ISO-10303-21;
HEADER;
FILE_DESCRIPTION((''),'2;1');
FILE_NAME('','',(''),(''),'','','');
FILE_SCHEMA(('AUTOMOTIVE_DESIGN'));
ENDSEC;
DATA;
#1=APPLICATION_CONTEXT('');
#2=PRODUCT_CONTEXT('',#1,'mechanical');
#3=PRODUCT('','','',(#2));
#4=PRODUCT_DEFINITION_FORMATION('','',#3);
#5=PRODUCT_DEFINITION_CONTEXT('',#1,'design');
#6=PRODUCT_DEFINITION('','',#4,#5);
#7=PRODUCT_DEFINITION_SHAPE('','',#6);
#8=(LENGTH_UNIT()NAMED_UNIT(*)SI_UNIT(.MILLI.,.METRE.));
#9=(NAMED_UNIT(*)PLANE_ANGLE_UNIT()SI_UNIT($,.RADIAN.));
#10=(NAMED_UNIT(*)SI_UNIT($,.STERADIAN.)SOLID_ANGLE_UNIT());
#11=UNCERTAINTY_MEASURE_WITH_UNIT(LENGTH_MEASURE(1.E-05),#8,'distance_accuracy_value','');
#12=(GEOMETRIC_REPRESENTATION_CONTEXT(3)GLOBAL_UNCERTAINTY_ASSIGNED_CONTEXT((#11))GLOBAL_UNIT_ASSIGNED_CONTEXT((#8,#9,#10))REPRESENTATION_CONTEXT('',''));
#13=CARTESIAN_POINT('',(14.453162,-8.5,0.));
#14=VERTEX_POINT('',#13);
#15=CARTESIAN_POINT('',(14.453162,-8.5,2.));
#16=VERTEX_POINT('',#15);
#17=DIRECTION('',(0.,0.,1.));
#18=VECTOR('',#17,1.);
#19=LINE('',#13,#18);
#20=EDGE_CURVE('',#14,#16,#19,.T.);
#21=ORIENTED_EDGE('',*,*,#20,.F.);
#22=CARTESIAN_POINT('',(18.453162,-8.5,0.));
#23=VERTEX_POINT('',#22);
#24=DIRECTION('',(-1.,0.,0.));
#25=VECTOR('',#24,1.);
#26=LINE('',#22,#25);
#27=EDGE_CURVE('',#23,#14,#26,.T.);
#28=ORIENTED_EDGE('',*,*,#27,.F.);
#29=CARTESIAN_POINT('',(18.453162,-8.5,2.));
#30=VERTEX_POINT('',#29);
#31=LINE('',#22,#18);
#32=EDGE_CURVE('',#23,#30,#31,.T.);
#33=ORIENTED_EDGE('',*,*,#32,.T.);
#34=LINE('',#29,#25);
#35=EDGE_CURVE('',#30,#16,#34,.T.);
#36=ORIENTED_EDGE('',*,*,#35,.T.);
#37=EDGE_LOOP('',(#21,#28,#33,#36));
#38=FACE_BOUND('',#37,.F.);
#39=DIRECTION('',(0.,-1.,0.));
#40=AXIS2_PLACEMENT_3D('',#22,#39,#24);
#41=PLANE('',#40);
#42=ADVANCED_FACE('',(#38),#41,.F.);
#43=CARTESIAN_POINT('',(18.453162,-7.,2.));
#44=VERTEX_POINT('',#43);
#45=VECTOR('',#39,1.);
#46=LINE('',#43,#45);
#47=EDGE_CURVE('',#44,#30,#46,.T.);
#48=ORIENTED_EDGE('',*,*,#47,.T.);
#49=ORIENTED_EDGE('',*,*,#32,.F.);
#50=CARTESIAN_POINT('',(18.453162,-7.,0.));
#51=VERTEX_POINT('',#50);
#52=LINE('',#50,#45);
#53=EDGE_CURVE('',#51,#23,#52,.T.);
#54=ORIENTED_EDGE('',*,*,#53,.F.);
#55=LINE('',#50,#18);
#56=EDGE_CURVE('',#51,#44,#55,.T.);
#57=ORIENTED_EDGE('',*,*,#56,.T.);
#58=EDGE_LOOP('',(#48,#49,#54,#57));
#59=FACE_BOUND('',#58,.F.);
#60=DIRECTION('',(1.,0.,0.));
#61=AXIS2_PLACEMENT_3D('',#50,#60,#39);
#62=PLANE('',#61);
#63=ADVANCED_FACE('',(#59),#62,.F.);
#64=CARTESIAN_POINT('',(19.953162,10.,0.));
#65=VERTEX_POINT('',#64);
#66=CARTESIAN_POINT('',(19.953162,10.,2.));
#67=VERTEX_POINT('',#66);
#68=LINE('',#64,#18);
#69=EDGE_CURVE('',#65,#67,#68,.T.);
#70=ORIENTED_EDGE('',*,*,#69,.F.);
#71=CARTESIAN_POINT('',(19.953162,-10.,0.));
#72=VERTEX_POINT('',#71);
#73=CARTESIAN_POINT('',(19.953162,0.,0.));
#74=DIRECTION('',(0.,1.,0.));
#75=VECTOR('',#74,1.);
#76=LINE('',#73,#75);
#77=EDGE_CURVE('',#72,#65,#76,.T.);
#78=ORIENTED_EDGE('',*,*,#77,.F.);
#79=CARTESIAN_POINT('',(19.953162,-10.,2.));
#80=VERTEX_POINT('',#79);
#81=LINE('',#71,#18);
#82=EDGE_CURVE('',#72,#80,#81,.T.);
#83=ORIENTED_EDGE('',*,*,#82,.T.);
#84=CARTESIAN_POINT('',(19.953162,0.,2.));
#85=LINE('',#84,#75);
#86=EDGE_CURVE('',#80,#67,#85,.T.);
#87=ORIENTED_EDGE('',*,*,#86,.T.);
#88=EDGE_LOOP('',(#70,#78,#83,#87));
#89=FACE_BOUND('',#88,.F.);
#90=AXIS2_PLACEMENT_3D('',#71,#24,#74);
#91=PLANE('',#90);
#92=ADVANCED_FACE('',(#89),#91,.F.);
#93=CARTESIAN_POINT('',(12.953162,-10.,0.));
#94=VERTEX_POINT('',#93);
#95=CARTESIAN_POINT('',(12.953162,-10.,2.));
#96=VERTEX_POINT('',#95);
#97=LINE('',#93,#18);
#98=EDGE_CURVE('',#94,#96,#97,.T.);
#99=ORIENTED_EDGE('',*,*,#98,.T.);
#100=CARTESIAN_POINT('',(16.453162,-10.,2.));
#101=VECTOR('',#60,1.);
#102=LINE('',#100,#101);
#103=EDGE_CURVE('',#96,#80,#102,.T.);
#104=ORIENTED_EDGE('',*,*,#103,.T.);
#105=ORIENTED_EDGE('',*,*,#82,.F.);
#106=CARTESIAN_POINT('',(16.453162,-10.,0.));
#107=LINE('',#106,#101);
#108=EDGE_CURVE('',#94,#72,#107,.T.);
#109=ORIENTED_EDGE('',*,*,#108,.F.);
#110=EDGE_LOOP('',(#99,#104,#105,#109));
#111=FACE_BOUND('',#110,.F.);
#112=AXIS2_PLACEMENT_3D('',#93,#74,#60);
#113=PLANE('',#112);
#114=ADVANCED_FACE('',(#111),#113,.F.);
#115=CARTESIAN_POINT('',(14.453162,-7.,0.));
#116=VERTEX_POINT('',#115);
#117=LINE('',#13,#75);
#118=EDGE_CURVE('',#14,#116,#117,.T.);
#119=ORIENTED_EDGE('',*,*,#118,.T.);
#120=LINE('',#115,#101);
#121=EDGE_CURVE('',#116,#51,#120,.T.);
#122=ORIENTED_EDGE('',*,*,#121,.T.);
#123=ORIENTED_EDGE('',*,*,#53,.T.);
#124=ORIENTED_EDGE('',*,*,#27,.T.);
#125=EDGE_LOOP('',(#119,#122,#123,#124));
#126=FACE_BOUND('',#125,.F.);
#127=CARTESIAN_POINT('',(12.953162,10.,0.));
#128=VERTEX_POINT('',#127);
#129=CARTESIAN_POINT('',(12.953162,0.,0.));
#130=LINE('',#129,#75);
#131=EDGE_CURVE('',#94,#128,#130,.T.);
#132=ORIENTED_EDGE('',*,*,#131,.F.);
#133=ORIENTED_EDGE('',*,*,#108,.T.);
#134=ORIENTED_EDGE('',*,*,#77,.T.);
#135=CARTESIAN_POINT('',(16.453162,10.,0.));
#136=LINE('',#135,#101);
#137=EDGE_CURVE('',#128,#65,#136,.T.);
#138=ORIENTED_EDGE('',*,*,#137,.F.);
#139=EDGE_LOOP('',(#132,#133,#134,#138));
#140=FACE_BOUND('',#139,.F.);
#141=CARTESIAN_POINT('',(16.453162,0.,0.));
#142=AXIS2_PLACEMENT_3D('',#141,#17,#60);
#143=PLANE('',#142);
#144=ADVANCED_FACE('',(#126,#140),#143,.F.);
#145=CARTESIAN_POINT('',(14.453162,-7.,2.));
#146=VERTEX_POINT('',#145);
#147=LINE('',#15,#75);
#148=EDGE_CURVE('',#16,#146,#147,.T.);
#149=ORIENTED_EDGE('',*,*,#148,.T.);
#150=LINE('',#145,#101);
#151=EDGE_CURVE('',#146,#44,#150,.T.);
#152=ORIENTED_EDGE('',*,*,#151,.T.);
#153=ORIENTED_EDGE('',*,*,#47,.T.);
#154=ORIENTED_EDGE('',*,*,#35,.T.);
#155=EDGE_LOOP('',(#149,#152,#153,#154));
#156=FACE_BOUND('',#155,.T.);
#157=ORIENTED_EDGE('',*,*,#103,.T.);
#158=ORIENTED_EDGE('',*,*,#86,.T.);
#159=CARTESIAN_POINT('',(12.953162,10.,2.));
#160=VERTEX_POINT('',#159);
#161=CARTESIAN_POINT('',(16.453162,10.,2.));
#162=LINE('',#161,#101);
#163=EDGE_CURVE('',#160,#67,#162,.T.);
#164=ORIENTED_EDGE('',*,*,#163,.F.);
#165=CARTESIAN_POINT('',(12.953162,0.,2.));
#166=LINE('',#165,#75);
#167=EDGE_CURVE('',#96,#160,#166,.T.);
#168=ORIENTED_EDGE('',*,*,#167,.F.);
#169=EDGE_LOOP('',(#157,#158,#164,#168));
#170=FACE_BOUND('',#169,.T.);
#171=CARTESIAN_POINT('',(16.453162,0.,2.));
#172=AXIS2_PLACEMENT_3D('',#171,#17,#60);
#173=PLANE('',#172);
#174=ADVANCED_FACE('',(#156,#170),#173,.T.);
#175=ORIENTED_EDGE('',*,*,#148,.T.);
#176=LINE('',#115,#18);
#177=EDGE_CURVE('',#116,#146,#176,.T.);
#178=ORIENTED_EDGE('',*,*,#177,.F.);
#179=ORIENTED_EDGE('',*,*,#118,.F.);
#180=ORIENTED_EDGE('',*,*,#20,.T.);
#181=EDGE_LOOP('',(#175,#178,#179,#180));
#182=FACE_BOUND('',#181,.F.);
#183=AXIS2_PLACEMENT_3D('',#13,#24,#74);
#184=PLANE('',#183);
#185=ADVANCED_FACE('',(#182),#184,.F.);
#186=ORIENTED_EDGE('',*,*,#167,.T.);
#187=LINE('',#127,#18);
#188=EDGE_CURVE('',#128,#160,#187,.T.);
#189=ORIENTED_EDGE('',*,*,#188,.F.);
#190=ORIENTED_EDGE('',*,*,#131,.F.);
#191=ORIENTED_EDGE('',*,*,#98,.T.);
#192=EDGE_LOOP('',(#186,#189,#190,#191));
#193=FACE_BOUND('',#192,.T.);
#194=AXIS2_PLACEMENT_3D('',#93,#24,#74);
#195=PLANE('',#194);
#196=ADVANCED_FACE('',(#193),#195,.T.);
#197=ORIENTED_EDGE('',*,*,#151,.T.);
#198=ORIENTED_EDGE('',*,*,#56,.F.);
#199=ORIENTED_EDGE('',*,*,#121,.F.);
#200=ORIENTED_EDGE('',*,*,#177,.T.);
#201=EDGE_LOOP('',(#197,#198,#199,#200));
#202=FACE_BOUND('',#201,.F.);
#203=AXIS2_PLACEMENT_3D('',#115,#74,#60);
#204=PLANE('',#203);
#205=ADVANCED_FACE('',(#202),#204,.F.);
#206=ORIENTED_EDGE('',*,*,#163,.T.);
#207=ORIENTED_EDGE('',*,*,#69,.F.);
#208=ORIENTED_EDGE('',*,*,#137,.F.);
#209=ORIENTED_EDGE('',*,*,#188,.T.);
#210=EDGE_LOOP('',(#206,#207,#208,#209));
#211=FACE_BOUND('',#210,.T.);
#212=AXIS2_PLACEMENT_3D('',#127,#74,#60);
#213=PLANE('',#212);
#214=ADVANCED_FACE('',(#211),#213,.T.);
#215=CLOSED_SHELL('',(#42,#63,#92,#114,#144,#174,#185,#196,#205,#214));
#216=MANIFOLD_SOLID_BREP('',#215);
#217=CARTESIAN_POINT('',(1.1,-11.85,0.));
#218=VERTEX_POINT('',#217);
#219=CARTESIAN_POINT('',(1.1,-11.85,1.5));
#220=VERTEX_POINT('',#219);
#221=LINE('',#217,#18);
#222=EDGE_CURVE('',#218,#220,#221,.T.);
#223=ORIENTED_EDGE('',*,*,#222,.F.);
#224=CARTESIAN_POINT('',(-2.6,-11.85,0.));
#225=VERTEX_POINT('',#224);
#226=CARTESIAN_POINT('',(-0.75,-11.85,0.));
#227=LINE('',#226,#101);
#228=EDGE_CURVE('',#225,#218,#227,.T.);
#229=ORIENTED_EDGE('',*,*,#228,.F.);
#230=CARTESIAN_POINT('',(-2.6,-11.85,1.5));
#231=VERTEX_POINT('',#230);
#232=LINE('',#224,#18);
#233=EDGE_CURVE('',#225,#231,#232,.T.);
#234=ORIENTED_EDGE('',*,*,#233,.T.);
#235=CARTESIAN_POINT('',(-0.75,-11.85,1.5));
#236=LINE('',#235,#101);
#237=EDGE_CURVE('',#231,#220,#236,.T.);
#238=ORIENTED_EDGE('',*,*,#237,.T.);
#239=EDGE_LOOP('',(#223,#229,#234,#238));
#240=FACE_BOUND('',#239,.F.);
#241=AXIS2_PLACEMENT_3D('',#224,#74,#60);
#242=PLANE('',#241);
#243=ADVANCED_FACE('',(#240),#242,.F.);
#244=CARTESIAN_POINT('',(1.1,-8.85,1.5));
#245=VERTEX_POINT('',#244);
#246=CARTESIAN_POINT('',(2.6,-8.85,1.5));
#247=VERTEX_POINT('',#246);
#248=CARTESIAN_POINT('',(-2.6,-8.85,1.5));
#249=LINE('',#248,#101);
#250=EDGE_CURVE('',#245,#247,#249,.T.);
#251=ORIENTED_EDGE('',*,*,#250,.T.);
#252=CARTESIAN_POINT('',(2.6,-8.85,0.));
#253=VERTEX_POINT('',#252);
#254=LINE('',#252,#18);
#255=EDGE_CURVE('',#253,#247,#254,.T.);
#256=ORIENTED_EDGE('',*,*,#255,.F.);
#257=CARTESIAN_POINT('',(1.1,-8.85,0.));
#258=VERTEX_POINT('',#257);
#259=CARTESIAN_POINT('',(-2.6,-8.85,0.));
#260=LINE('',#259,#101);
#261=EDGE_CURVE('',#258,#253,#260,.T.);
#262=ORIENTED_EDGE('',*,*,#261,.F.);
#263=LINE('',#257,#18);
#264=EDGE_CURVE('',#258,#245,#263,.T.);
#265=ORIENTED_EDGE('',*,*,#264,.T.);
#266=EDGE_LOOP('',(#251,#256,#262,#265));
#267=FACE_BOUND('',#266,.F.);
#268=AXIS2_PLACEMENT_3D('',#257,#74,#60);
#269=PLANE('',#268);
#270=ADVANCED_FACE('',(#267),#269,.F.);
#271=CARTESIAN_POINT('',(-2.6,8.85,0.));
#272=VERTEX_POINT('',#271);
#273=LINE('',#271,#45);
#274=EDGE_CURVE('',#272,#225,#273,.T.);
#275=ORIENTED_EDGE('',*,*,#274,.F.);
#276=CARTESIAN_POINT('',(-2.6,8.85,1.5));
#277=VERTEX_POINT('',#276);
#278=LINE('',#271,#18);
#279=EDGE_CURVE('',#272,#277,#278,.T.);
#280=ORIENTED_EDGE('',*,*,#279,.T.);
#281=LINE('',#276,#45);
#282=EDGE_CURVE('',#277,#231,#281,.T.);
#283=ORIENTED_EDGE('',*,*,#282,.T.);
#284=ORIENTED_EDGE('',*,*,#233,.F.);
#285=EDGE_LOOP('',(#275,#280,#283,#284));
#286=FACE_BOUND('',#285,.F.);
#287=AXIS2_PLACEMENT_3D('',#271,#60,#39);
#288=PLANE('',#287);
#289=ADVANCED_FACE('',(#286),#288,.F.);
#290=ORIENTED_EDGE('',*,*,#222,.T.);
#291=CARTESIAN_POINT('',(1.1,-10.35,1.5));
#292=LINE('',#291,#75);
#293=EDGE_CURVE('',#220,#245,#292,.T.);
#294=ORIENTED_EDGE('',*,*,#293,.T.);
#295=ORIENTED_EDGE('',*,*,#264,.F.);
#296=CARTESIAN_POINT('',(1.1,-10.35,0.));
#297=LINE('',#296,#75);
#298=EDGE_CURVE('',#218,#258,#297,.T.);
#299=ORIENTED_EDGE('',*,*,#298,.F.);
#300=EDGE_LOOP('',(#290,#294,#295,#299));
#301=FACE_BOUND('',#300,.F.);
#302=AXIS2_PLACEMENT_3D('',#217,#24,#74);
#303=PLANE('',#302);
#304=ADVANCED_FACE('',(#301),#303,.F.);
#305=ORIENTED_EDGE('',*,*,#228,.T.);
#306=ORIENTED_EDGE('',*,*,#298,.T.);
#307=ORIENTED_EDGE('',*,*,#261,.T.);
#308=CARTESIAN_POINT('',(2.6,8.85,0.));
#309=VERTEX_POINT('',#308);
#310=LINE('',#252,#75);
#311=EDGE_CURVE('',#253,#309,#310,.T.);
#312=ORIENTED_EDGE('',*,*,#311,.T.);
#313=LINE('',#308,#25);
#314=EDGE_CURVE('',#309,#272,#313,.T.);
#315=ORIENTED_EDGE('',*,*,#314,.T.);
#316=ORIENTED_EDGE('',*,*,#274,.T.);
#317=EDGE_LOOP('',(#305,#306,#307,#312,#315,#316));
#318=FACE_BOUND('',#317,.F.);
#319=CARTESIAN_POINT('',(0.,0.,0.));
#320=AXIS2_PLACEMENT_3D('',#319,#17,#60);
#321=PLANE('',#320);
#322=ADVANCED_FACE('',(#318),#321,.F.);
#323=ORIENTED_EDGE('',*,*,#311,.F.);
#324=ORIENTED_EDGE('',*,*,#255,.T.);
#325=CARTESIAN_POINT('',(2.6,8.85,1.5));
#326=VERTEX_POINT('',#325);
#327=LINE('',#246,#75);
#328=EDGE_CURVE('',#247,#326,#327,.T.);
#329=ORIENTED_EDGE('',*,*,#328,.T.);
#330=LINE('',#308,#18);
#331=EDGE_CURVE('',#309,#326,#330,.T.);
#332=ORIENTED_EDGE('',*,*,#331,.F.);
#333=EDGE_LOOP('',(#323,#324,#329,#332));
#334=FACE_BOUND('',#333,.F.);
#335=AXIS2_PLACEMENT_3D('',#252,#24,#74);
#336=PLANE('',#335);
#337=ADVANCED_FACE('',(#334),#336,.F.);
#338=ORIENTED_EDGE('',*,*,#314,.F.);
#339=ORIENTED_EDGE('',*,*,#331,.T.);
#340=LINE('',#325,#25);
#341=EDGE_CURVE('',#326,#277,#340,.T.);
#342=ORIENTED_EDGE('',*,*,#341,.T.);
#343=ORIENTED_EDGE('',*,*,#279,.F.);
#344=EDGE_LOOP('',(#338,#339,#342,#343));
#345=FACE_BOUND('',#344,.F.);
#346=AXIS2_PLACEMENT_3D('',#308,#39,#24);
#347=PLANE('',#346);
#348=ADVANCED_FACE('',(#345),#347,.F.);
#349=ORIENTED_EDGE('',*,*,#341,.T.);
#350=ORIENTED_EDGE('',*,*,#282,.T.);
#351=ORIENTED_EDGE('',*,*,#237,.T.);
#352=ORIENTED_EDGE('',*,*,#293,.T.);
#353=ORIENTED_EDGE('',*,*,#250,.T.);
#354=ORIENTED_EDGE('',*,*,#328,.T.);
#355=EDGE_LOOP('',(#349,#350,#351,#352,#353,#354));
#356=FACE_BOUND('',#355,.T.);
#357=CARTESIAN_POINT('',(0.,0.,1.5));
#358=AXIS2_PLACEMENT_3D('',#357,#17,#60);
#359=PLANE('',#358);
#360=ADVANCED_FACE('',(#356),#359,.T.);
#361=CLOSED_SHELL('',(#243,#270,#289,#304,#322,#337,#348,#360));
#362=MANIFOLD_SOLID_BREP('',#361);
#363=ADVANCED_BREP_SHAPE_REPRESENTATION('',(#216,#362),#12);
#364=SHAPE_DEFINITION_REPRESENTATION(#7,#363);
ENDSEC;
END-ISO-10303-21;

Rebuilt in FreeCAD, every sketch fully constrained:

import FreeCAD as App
import Part
import Sketcher

V = App.Vector

doc = App.newDocument("Part")
params = doc.addObject("Spreadsheet::Sheet", "Params")
for row, (alias, value) in enumerate([
    ("sketch1_height", "3 mm"),
    ("sketch1_width", "5.2 mm"),
    ("sketch1_width2", "3.7 mm"),
    ("sketch1_height2", "17.7 mm"),
    ("pad1_length", "1.5 mm"),
    ("sketch2_width", "7 mm"),
    ("sketch2_width2", "4 mm"),
    ("sketch2_height", "20 mm"),
    ("sketch2_height2", "1.5 mm"),
    ("pad2_length", "2 mm"),
], start=1):
    params.set(f"A{row}", alias)
    params.set(f"B{row}", "=" + value)
    params.setAlias(f"B{row}", alias)

body = doc.addObject("PartDesign::Body", "Body")

sketch1 = body.newObject("Sketcher::SketchObject", "Sketch")
sketch1.AttachmentSupport = (doc.getObject("XY_Plane"), [""])
sketch1.MapMode = "FlatFace"
sketch1.addGeometry([
    Part.LineSegment(V(2.6, -8.8, 0), V(2.6, 8.8, 0)),
    Part.LineSegment(V(2.6, 8.8, 0), V(-2.6, 8.8, 0)),
    Part.LineSegment(V(-2.6, 8.8, 0), V(-2.6, -11.8, 0)),
    Part.LineSegment(V(-2.6, -11.8, 0), V(1.1, -11.8, 0)),
    Part.LineSegment(V(1.1, -11.8, 0), V(1.1, -8.8, 0)),
    Part.LineSegment(V(1.1, -8.8, 0), V(2.6, -8.8, 0)),
], False)
sketch1.addConstraint([
    Sketcher.Constraint("Coincident", 0, 2, 1, 1),
    Sketcher.Constraint("Coincident", 1, 2, 2, 1),
    Sketcher.Constraint("Coincident", 2, 2, 3, 1),
    Sketcher.Constraint("Coincident", 3, 2, 4, 1),
    Sketcher.Constraint("Coincident", 4, 2, 5, 1),
    Sketcher.Constraint("Coincident", 5, 2, 0, 1),
    Sketcher.Constraint("Vertical", 0),
    Sketcher.Constraint("Horizontal", 1),
    Sketcher.Constraint("Vertical", 2),
    Sketcher.Constraint("Horizontal", 3),
    Sketcher.Constraint("Vertical", 4),
    Sketcher.Constraint("Horizontal", 5),
    Sketcher.Constraint("Symmetric", 1, 2, 5, 2, -1, 1),
    Sketcher.Constraint("DistanceY", 4, 1, 4, 2, 3.0),
    Sketcher.Constraint("DistanceX", 1, 2, 1, 1, 5.2),
    Sketcher.Constraint("DistanceX", 3, 1, 3, 2, 3.7),
    Sketcher.Constraint("DistanceY", 0, 1, 0, 2, 17.7),
])
sketch1.setExpression("Constraints[13]", "Params.sketch1_height")
sketch1.setExpression("Constraints[14]", "Params.sketch1_width")
sketch1.setExpression("Constraints[15]", "Params.sketch1_width2")
sketch1.setExpression("Constraints[16]", "Params.sketch1_height2")
pad1 = body.newObject("PartDesign::Pad", "Pad")
pad1.Profile = sketch1
pad1.setExpression("Length", "Params.pad1_length")
body2 = doc.addObject("PartDesign::Body", "Body001")

sketch2 = body2.newObject("Sketcher::SketchObject", "Sketch001")
sketch2.AttachmentSupport = (doc.getObject("XY_Plane001"), [""])
sketch2.MapMode = "FlatFace"
sketch2.addGeometry([
    Part.LineSegment(V(13, 10, 0), V(13, -10, 0)),
    Part.LineSegment(V(13, -10, 0), V(20, -10, 0)),
    Part.LineSegment(V(20, -10, 0), V(20, 10, 0)),
    Part.LineSegment(V(20, 10, 0), V(13, 10, 0)),
    Part.LineSegment(V(18.5, -7, 0), V(18.5, -8.5, 0)),
    Part.LineSegment(V(18.5, -8.5, 0), V(14.5, -8.5, 0)),
    Part.LineSegment(V(14.5, -8.5, 0), V(14.5, -7, 0)),
    Part.LineSegment(V(14.5, -7, 0), V(18.5, -7, 0)),
], False)
sketch2.addConstraint([
    Sketcher.Constraint("Coincident", 0, 2, 1, 1),
    Sketcher.Constraint("Coincident", 1, 2, 2, 1),
    Sketcher.Constraint("Coincident", 2, 2, 3, 1),
    Sketcher.Constraint("Coincident", 3, 2, 0, 1),
    Sketcher.Constraint("Coincident", 4, 2, 5, 1),
    Sketcher.Constraint("Coincident", 5, 2, 6, 1),
    Sketcher.Constraint("Coincident", 6, 2, 7, 1),
    Sketcher.Constraint("Coincident", 7, 2, 4, 1),
    Sketcher.Constraint("Vertical", 0),
    Sketcher.Constraint("Horizontal", 1),
    Sketcher.Constraint("Vertical", 2),
    Sketcher.Constraint("Horizontal", 3),
    Sketcher.Constraint("Vertical", 4),
    Sketcher.Constraint("Horizontal", 5),
    Sketcher.Constraint("Vertical", 6),
    Sketcher.Constraint("Horizontal", 7),
    Sketcher.Constraint("DistanceX", 1, 1, 1, 2, 7.0),
    Sketcher.Constraint("DistanceX", 5, 2, 5, 1, 4.0),
    Sketcher.Constraint("DistanceY", 0, 2, 0, 1, 20.0),
    Sketcher.Constraint("DistanceY", 4, 2, 4, 1, 1.5),
    Sketcher.Constraint("DistanceY", 0, 2, -1, 1, 10.0),
    Sketcher.Constraint("DistanceY", 6, 2, -1, 1, 7.0),
    Sketcher.Constraint("DistanceX", 4, 2, 1, 2, 1.5),
    Sketcher.Constraint("DistanceX", -1, 1, 1, 2, 19.953162),
])
sketch2.setExpression("Constraints[16]", "Params.sketch2_width")
sketch2.setExpression("Constraints[17]", "Params.sketch2_width2")
sketch2.setExpression("Constraints[18]", "Params.sketch2_height")
sketch2.setExpression("Constraints[19]", "Params.sketch2_height2")
pad2 = body2.newObject("PartDesign::Pad", "Pad001")
pad2.Profile = sketch2
pad2.setExpression("Length", "Params.pad2_length")

doc.recompute()
